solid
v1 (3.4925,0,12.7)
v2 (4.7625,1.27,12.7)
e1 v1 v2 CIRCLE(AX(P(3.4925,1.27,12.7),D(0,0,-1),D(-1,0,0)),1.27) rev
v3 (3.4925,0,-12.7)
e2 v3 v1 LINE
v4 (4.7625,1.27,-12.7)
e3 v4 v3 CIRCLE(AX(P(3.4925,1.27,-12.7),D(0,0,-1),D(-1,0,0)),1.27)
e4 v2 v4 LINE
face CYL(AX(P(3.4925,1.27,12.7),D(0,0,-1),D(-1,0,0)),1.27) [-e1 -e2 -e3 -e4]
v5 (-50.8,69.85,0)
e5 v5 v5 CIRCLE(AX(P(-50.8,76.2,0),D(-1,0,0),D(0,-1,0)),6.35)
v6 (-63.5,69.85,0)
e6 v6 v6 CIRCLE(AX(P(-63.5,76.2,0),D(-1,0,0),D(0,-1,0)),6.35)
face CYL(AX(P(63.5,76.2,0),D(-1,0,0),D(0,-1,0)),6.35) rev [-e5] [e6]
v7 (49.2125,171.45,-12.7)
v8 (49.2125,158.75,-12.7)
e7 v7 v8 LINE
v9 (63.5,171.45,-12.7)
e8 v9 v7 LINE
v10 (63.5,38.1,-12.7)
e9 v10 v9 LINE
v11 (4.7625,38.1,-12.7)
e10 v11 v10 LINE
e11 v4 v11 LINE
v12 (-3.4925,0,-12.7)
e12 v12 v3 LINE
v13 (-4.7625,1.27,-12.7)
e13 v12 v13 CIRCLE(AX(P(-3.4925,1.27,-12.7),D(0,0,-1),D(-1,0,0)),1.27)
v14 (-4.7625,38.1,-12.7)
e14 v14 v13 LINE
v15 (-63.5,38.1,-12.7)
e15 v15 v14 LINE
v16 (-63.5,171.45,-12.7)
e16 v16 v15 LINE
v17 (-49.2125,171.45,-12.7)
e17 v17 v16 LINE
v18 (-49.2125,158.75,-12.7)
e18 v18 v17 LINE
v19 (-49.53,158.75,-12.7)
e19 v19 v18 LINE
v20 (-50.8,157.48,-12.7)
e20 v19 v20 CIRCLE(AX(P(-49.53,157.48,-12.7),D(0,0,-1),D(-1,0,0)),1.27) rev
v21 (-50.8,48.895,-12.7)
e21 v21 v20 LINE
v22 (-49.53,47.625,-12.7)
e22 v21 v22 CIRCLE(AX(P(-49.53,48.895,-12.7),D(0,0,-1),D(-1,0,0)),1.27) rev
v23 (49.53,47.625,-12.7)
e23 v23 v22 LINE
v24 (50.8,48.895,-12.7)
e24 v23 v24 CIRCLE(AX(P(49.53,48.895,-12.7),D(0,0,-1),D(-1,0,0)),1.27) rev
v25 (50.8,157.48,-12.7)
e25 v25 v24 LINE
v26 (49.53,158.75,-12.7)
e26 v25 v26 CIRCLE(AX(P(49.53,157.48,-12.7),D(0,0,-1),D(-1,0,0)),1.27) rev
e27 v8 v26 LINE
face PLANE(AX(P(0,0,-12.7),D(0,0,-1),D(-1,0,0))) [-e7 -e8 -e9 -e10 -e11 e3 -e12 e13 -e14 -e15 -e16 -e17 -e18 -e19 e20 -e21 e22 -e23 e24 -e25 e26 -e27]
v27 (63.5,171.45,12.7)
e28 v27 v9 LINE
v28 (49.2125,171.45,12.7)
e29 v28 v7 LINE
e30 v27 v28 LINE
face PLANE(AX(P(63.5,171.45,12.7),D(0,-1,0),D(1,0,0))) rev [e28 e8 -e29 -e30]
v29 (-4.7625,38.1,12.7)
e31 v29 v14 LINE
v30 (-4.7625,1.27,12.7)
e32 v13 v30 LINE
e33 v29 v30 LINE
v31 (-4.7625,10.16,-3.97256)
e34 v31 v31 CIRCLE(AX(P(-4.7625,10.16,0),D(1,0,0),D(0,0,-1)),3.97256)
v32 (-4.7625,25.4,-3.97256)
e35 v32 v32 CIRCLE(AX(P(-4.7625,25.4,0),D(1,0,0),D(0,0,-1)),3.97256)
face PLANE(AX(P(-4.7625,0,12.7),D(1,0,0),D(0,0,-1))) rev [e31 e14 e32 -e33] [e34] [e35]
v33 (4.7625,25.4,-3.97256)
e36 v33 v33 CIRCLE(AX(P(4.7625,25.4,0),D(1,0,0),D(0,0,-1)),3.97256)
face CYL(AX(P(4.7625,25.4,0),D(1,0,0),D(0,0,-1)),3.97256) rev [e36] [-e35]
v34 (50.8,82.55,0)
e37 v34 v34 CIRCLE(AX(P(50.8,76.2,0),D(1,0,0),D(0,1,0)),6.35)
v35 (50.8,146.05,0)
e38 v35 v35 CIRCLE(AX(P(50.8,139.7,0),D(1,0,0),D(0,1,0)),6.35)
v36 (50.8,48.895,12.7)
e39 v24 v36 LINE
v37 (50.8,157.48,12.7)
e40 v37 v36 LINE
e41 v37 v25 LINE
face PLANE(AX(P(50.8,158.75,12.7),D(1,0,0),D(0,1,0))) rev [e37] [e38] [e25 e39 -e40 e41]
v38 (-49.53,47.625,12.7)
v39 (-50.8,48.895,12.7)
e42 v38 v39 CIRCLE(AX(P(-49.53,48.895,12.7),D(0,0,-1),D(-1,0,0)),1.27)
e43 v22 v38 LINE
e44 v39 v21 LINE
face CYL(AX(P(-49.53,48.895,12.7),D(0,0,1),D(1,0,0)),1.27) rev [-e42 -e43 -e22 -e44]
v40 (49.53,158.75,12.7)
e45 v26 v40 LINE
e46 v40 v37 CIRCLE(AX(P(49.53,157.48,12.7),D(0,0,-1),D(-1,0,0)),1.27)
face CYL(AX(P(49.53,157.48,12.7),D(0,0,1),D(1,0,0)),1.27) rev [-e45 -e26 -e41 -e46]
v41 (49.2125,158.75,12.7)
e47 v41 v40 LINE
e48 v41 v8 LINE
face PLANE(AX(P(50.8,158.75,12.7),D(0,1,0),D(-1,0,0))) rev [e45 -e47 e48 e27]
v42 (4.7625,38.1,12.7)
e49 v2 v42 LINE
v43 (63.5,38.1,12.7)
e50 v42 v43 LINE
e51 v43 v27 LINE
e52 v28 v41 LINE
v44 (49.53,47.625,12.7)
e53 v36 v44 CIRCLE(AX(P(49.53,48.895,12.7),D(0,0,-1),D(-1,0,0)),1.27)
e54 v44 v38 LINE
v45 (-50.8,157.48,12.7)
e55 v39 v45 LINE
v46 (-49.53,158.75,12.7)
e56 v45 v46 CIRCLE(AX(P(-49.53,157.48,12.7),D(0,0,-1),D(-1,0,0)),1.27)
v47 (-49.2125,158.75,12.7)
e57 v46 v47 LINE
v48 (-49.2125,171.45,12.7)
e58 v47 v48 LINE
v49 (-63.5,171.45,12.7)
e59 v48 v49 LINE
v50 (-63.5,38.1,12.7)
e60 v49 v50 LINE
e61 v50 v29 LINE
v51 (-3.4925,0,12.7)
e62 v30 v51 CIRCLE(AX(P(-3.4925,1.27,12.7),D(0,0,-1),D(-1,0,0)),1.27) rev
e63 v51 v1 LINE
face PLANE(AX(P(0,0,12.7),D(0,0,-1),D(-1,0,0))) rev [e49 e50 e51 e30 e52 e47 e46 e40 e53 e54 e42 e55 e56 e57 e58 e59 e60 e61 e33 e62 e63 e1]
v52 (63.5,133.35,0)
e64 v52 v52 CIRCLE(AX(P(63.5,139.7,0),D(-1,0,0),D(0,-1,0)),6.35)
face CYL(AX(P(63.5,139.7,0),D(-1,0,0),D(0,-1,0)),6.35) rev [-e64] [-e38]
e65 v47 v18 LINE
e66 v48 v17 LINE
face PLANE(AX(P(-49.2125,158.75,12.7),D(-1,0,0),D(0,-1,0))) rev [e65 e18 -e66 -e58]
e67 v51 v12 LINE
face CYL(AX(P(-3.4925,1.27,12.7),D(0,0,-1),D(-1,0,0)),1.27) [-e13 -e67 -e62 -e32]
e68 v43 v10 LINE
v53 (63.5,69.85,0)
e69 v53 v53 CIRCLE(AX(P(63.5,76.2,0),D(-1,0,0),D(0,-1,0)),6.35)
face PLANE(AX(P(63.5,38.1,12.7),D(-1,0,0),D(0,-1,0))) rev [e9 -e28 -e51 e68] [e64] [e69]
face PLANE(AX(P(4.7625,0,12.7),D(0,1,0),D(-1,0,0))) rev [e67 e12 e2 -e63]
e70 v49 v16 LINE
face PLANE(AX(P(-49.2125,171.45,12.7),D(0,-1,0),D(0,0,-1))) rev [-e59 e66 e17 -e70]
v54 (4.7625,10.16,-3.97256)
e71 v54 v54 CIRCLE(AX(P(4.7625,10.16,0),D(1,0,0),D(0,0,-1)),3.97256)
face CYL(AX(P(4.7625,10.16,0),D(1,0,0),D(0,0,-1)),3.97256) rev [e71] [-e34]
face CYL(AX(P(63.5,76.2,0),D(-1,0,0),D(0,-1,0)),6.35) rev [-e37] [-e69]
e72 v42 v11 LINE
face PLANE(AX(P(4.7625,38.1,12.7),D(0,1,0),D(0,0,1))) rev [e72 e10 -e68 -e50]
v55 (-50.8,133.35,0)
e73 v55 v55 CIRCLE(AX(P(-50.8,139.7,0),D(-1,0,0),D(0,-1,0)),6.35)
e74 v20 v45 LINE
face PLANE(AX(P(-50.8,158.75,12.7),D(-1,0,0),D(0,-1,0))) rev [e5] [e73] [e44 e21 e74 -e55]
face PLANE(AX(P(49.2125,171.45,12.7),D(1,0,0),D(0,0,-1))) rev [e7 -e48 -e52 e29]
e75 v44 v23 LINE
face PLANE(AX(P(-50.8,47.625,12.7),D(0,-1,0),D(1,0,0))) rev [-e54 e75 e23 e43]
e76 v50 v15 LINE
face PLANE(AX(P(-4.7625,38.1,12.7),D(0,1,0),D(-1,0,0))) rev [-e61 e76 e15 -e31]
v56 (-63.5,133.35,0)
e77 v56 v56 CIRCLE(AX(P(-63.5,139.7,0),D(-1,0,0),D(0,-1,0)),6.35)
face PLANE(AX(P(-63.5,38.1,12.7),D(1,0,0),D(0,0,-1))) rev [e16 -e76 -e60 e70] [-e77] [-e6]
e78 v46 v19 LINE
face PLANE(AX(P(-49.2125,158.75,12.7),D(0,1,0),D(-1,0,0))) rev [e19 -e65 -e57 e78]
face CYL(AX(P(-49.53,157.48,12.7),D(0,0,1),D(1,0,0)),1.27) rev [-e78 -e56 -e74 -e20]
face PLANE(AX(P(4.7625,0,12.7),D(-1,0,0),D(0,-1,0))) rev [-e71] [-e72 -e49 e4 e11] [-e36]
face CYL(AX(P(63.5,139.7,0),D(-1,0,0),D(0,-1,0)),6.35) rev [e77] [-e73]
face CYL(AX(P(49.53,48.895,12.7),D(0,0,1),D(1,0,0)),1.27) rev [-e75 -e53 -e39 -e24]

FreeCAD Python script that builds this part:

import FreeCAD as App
import Part
import Sketcher

V = App.Vector
Q = App.Units.Quantity


def edges_at(feature, points):
    """Names of the edges that pass closest to the given points."""
    edges = feature.Shape.Edges
    near = lambda p: min(range(len(edges)), key=lambda i: edges[i].distToShape(Part.Vertex(*p))[0])
    return sorted({f"Edge{near(p) + 1}" for p in points})

doc = App.newDocument("Part")
params = doc.addObject("Spreadsheet::Sheet", "Params")
for row, (alias, value) in enumerate([
    ("sketch1_width", "4 in"),
    ("sketch1_height", "1.5 in"),
    ("sketch1_height2", "0.5 in"),
    ("sketch1_height3", "5.25 in"),
    ("sketch1_width2", "0.375 in"),
    ("pad1_length", "1 in"),
    ("sketch2_diameter", "0.5 in"),
    ("fillet_radius", "0.05 in"),
    ("hole_diameter", "0.3128 in"),
    ("hole_depth", "2.6875 in"),
], start=1):
    params.set(f"A{row}", alias)
    params.set(f"B{row}", "=" + value)
    params.setAlias(f"B{row}", alias)

body = doc.addObject("PartDesign::Body", "Body")

# Sketch on XY plane
sketch1 = body.newObject("Sketcher::SketchObject", "Sketch")
sketch1.AttachmentSupport = (doc.getObject("XY_Plane"), [""])
sketch1.MapMode = "FlatFace"
sketch1.addGeometry([
    Part.LineSegment(V(-4.8, 0, 0), V(4.8, 0, 0)),  # 0
    Part.LineSegment(V(4.8, 0, 0), V(4.8, 38.1, 0)),  # 1
    Part.LineSegment(V(4.8, 38.1, 0), V(63.5, 38.1, 0)),  # 2
    Part.LineSegment(V(63.5, 38.1, 0), V(63.5, 171.4, 0)),  # 3
    Part.LineSegment(V(63.5, 171.4, 0), V(49.2, 171.4, 0)),  # 4
    Part.LineSegment(V(49.2, 171.4, 0), V(49.2, 158.8, 0)),  # 5
    Part.LineSegment(V(49.2, 158.8, 0), V(50.8, 158.8, 0)),  # 6
    Part.LineSegment(V(50.8, 158.8, 0), V(50.8, 47.6, 0)),  # 7
    Part.LineSegment(V(50.8, 47.6, 0), V(-50.8, 47.6, 0)),  # 8
    Part.LineSegment(V(-50.8, 47.6, 0), V(-50.8, 158.8, 0)),  # 9
    Part.LineSegment(V(-50.8, 158.8, 0), V(-49.2, 158.8, 0)),  # 10
    Part.LineSegment(V(-49.2, 158.8, 0), V(-49.2, 171.4, 0)),  # 11
    Part.LineSegment(V(-49.2, 171.4, 0), V(-63.5, 171.4, 0)),  # 12
    Part.LineSegment(V(-63.5, 171.4, 0), V(-63.5, 38.1, 0)),  # 13
    Part.LineSegment(V(-63.5, 38.1, 0), V(-4.8, 38.1, 0)),  # 14
    Part.LineSegment(V(-4.8, 38.1, 0), V(-4.8, 0, 0)),  # 15
], False)
sketch1.addConstraint([
    Sketcher.Constraint("Coincident", 0, 2, 1, 1),
    Sketcher.Constraint("Coincident", 1, 2, 2, 1),
    Sketcher.Constraint("Coincident", 2, 2, 3, 1),
    Sketcher.Constraint("Coincident", 3, 2, 4, 1),
    Sketcher.Constraint("Coincident", 4, 2, 5, 1),
    Sketcher.Constraint("Coincident", 5, 2, 6, 1),
    Sketcher.Constraint("Coincident", 6, 2, 7, 1),
    Sketcher.Constraint("Coincident", 7, 2, 8, 1),
    Sketcher.Constraint("Coincident", 8, 2, 9, 1),
    Sketcher.Constraint("Coincident", 9, 2, 10, 1),
    Sketcher.Constraint("Coincident", 10, 2, 11, 1),
    Sketcher.Constraint("Coincident", 11, 2, 12, 1),
    Sketcher.Constraint("Coincident", 12, 2, 13, 1),
    Sketcher.Constraint("Coincident", 13, 2, 14, 1),
    Sketcher.Constraint("Coincident", 14, 2, 15, 1),
    Sketcher.Constraint("Coincident", 15, 2, 0, 1),
    Sketcher.Constraint("Horizontal", 0),
    Sketcher.Constraint("Vertical", 1),
    Sketcher.Constraint("Horizontal", 2),
    Sketcher.Constraint("Vertical", 3),
    Sketcher.Constraint("Horizontal", 4),
    Sketcher.Constraint("Vertical", 5),
    Sketcher.Constraint("Horizontal", 6),
    Sketcher.Constraint("Vertical", 7),
    Sketcher.Constraint("Horizontal", 8),
    Sketcher.Constraint("Vertical", 9),
    Sketcher.Constraint("Horizontal", 10),
    Sketcher.Constraint("Vertical", 11),
    Sketcher.Constraint("Horizontal", 12),
    Sketcher.Constraint("Vertical", 13),
    Sketcher.Constraint("Horizontal", 14),
    Sketcher.Constraint("Vertical", 15),
    Sketcher.Constraint("Symmetric", 0, 2, 15, 2, -1, 1),
    Sketcher.Constraint("Symmetric", 6, 2, 9, 2, -2),
    Sketcher.Constraint("Symmetric", 4, 2, 11, 2, -2),
    Sketcher.Constraint("Symmetric", 2, 2, 13, 2, -2),
    Sketcher.Constraint("DistanceX", 8, 2, 8, 1, Q("4 in")),
    Sketcher.Constraint("DistanceY", 1, 1, 1, 2, Q("1.5 in")),
    Sketcher.Constraint("DistanceY", 5, 2, 5, 1, Q("0.5 in")),
    Sketcher.Constraint("DistanceY", 3, 1, 3, 2, Q("5.25 in")),
    Sketcher.Constraint("DistanceX", -1, 1, 2, 2, Q("2.5 in")),
    Sketcher.Constraint("DistanceX", 0, 1, 0, 2, Q("0.375 in")),
    Sketcher.Constraint("DistanceX", 4, 2, 4, 1, Q("0.5625 in")),
    Sketcher.Constraint("DistanceY", 7, 2, 7, 1, Q("4.375 in")),
])
sketch1.setExpression("Constraints[36]", "Params.sketch1_width")
sketch1.setExpression("Constraints[37]", "Params.sketch1_height")
sketch1.setExpression("Constraints[38]", "Params.sketch1_height2")
sketch1.setExpression("Constraints[39]", "Params.sketch1_height3")
sketch1.setExpression("Constraints[41]", "Params.sketch1_width2")
pad1 = body.newObject("PartDesign::Pad", "Pad")
pad1.Profile = sketch1
pad1.setExpression("Length", "Params.pad1_length")
pad1.Midplane = True

# Sketch on YZ plane
sketch2 = body.newObject("Sketcher::SketchObject", "Sketch001")
sketch2.AttachmentSupport = (doc.getObject("YZ_Plane"), [""])
sketch2.MapMode = "FlatFace"
sketch2.AttachmentOffset = App.Placement(V(0, 0, -2.5 * 25.4), App.Rotation())
sketch2.addGeometry([
    Part.Circle(V(76, 0, 0), V(0, 0, 1), 6),
    Part.Circle(V(140, 0, 0), V(0, 0, 1), 6),
], False)
sketch2.addConstraint([
    Sketcher.Constraint("Equal", 0, 1),
    Sketcher.Constraint("PointOnObject", 0, 3, -1),
    Sketcher.Constraint("PointOnObject", 1, 3, -1),
    Sketcher.Constraint("Diameter", 0, Q("0.5 in")),
    Sketcher.Constraint("DistanceX", -1, 1, 0, 3, Q("3 in")),
    Sketcher.Constraint("DistanceX", -1, 1, 1, 3, Q("5.5 in")),
])
sketch2.setExpression("Constraints[3]", "Params.sketch2_diameter")
pocket1 = body.newObject("PartDesign::Pocket", "Pocket")
pocket1.Profile = sketch2
pocket1.Type = "ThroughAll"
pocket1.Reversed = True
doc.recompute()

fillet = body.newObject("PartDesign::Fillet", "Fillet")
fillet.Base = (pocket1, edges_at(pocket1, [
    (4.763, 0, 0),
    (-4.763, 0, 0),
    (-50.8, 158.75, 0),
    (-50.8, 47.625, 0),
    (50.8, 47.625, 0),
    (50.8, 158.75, 0),
]))
fillet.setExpression("Radius", "Params.fillet_radius")

# Sketch on YZ plane
sketch3 = body.newObject("Sketcher::SketchObject", "Sketch002")
sketch3.AttachmentSupport = (doc.getObject("YZ_Plane"), [""])
sketch3.MapMode = "FlatFace"
sketch3.AttachmentOffset = App.Placement(V(0, 0, 0.1875 * 25.4), App.Rotation())
sketch3.addGeometry([
    Part.Circle(V(25.4, 0, 0), V(0, 0, 1), 4),
    Part.Circle(V(10.2, 0, 0), V(0, 0, 1), 4),
], False)
sketch3.addConstraint([
    Sketcher.Constraint("Equal", 0, 1),
    Sketcher.Constraint("PointOnObject", 0, 3, -1),
    Sketcher.Constraint("PointOnObject", 1, 3, -1),
    Sketcher.Constraint("DistanceX", -1, 1, 0, 3, Q("1 in")),
    Sketcher.Constraint("Diameter", 0, Q("0.3128 in")),
    Sketcher.Constraint("DistanceX", -1, 1, 1, 3, Q("0.4 in")),
])
doc.recompute()
hole = body.newObject("PartDesign::Hole", "Hole")
hole.Profile = sketch3
hole.ThreadType = "None"
hole.setExpression("Diameter", "Params.hole_diameter")
hole.DepthType = "Dimension"
hole.setExpression("Depth", "Params.hole_depth")
hole.DrillPoint = "Angled"
hole.DrillPointAngle = 118

doc.recompute()
